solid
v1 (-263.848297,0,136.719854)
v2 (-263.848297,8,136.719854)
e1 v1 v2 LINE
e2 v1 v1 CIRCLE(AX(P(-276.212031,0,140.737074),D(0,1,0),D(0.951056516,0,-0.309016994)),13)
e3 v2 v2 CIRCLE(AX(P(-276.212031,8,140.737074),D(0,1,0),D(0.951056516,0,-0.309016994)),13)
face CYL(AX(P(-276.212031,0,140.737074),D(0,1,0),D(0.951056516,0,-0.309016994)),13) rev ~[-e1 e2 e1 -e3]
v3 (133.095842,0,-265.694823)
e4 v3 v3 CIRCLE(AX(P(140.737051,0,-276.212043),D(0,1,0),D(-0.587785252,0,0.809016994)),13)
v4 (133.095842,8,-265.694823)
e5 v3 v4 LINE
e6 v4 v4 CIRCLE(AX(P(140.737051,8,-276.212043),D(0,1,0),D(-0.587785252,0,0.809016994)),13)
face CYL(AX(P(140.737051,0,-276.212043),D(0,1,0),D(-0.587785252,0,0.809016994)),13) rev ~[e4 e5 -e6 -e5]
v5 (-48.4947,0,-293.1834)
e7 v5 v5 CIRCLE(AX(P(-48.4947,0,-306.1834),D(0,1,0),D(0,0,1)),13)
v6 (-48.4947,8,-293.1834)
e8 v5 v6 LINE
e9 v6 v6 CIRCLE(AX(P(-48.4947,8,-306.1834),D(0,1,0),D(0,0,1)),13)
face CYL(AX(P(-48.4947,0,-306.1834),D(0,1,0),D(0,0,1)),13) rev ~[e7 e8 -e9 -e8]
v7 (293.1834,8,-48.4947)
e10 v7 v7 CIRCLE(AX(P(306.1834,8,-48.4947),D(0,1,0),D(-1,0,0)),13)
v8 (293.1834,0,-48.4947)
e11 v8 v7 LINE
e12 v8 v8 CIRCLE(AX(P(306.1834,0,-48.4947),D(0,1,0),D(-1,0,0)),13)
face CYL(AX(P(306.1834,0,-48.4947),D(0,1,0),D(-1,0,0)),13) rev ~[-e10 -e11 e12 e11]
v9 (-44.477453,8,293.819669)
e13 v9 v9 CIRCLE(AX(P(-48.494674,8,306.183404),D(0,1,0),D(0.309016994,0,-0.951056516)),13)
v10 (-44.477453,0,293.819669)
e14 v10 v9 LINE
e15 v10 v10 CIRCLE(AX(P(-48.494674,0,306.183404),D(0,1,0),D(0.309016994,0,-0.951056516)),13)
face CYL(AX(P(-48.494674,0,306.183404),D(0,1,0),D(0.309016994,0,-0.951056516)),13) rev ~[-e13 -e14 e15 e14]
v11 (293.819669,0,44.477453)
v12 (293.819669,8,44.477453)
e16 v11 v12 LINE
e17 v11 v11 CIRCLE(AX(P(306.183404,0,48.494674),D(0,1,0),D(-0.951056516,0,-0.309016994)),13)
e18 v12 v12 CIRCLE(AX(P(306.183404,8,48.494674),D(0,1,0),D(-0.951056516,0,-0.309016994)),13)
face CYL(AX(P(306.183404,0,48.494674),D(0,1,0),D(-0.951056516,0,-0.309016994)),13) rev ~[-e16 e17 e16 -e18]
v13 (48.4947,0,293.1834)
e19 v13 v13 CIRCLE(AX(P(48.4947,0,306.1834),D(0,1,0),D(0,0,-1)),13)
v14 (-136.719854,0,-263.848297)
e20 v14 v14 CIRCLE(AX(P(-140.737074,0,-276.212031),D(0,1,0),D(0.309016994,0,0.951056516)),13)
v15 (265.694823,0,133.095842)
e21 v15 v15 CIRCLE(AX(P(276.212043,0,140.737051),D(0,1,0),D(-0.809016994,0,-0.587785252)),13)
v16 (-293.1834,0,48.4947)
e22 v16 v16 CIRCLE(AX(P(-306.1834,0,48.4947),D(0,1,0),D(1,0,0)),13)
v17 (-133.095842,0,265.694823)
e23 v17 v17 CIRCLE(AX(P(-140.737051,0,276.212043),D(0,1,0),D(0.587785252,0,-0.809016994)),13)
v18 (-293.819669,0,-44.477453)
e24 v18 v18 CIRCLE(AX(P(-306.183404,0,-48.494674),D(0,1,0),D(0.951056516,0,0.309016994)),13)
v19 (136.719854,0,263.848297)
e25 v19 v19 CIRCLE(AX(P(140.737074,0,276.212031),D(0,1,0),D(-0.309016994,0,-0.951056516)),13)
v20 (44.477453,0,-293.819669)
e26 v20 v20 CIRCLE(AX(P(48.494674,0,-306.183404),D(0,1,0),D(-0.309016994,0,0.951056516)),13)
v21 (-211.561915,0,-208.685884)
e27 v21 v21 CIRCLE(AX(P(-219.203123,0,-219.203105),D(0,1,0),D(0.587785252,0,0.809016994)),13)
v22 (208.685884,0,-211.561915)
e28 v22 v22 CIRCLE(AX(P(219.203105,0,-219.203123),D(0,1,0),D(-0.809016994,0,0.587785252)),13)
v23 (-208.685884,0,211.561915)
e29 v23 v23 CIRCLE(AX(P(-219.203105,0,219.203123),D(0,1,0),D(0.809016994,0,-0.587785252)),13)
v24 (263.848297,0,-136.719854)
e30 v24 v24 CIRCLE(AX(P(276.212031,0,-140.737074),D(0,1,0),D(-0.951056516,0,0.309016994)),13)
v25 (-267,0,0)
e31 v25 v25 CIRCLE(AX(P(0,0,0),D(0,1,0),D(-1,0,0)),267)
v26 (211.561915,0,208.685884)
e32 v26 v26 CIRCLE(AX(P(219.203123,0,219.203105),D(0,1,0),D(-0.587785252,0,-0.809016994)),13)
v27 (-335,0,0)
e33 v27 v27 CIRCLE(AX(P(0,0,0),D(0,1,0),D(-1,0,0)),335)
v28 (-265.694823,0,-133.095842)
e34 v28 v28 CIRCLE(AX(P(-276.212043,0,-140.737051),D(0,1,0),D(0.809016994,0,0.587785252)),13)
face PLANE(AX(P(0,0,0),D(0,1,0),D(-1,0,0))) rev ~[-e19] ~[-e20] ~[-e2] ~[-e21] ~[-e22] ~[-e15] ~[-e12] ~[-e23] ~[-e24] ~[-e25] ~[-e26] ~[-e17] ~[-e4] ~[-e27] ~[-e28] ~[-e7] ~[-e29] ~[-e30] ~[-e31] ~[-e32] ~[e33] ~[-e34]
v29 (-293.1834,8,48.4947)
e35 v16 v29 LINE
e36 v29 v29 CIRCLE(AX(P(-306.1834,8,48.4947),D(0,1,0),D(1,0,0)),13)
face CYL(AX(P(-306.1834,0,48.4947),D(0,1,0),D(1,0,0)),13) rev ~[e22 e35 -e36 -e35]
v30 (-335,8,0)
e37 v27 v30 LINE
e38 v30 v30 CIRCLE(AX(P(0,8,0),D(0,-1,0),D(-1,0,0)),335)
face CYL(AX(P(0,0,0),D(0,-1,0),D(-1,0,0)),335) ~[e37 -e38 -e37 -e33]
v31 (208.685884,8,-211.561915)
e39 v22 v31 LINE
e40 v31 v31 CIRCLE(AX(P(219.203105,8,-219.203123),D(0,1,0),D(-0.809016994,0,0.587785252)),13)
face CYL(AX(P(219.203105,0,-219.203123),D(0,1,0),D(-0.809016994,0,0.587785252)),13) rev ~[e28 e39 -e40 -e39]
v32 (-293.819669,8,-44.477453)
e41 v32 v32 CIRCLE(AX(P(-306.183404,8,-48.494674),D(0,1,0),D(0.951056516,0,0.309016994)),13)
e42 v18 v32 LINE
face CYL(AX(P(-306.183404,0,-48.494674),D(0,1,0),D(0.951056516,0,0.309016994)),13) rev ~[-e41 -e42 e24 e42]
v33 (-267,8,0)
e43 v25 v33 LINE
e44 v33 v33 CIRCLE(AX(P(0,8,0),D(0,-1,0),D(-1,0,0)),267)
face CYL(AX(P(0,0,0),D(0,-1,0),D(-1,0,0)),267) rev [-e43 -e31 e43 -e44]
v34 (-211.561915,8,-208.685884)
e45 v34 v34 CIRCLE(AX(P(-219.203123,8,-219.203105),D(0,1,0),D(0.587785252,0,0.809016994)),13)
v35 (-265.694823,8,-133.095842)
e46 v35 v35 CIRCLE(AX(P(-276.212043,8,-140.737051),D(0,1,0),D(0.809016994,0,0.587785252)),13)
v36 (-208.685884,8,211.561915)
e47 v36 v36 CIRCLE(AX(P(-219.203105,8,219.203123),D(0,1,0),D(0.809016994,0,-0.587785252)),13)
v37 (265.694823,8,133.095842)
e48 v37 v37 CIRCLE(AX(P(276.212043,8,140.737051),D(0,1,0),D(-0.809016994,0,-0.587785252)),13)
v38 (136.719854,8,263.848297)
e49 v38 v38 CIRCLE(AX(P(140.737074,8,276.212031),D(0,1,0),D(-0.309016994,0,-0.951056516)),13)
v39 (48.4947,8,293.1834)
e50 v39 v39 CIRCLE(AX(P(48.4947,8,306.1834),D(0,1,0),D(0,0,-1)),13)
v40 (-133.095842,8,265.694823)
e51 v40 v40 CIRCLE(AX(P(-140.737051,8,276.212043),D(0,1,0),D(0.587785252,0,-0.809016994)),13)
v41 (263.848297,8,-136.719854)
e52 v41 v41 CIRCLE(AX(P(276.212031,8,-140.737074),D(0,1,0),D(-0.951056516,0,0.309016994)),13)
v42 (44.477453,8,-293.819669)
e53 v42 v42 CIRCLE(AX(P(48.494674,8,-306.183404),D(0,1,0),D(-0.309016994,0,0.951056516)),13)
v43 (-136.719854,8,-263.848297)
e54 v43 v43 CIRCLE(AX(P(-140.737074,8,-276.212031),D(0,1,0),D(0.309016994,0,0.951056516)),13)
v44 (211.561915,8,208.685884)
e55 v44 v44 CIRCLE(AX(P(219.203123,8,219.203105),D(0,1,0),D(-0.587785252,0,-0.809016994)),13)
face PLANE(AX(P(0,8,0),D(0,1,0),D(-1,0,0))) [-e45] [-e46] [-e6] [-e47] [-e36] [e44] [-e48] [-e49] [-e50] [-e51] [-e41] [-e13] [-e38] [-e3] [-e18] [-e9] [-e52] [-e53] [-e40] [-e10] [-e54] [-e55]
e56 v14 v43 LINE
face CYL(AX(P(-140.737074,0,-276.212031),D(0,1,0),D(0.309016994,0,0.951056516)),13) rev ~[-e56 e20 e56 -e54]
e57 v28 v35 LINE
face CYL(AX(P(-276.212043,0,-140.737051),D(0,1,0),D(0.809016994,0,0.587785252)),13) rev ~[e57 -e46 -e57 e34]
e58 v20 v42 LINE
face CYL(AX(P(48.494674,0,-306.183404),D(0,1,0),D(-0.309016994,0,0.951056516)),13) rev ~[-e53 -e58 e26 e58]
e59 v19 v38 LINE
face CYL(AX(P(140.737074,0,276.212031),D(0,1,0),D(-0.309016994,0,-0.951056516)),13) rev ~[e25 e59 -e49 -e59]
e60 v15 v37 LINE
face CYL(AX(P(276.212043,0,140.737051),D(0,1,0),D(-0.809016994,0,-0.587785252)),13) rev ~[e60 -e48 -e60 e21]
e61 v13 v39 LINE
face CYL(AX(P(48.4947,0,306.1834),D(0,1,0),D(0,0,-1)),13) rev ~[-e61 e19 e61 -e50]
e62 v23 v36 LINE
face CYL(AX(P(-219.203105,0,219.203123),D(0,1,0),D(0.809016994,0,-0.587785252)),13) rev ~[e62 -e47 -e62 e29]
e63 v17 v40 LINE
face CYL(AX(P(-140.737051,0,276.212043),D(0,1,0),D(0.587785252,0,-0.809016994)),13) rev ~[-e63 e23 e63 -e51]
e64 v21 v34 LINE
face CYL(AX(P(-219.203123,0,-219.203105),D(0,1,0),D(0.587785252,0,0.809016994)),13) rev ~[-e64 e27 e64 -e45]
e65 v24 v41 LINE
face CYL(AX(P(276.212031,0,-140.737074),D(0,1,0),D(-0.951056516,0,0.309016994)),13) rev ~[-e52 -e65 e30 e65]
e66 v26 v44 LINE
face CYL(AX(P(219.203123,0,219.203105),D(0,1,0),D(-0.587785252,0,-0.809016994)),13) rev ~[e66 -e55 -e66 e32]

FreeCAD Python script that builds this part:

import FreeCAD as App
import Part
import Sketcher

V = App.Vector
Q = App.Units.Quantity

doc = App.newDocument("Part")
body = doc.addObject("PartDesign::Body", "Body")

sketch1 = doc.addObject("Sketcher::SketchObject", "Sketch")
body.addObject(sketch1)
sketch1.AttachmentSupport = (doc.XZ_Plane, [""])
sketch1.MapMode = "FlatFace"
sketch1.addGeometry([
    Part.Circle(V(0, 0, 0), V(0, 0, 1), 335),
    Part.Circle(V(0, 0, 0), V(0, 0, 1), 267),
], False)
sketch1.addConstraint([
    Sketcher.Constraint("Coincident", 0, 3, -1, 1),
    Sketcher.Constraint("Coincident", 1, 3, -1, 1),
    Sketcher.Constraint("Diameter", 0, Q("670 mm")),
    Sketcher.Constraint("Diameter", 1, Q("534 mm")),
])
pad1 = doc.addObject("PartDesign::Pad", "Pad")
body.addObject(pad1)
pad1.Profile = sketch1
pad1.Length = 8
pad1.Reversed = True

sketch2 = doc.addObject("Sketcher::SketchObject", "Sketch001")
body.addObject(sketch2)
sketch2.AttachmentSupport = (doc.XZ_Plane, [""])
sketch2.MapMode = "FlatFace"
sketch2.addGeometry(Part.Circle(V(48, 306, 0), V(0, 0, 1), 13), False)
sketch2.addConstraint([
    Sketcher.Constraint("Diameter", 0, Q("26 mm")),
    Sketcher.Constraint("DistanceX", -1, 1, 0, 3, Q("48.4947 mm")),
    Sketcher.Constraint("DistanceY", -1, 1, 0, 3, Q("306.1834 mm")),
])
doc.recompute()
hole = doc.addObject("PartDesign::Hole", "Hole")
body.addObject(hole)
hole.Profile = sketch2
hole.ThreadType = "None"
hole.Diameter = 26
hole.DepthType = "ThroughAll"
doc.recompute()

polarpattern = doc.addObject("PartDesign::PolarPattern", "PolarPattern")
body.addObject(polarpattern)
polarpattern.Originals = [hole]
polarpattern.Axis = (doc.Y_Axis, [""])
polarpattern.Angle = 360
polarpattern.Occurrences = 20
body.Tip = polarpattern

doc.recompute()
